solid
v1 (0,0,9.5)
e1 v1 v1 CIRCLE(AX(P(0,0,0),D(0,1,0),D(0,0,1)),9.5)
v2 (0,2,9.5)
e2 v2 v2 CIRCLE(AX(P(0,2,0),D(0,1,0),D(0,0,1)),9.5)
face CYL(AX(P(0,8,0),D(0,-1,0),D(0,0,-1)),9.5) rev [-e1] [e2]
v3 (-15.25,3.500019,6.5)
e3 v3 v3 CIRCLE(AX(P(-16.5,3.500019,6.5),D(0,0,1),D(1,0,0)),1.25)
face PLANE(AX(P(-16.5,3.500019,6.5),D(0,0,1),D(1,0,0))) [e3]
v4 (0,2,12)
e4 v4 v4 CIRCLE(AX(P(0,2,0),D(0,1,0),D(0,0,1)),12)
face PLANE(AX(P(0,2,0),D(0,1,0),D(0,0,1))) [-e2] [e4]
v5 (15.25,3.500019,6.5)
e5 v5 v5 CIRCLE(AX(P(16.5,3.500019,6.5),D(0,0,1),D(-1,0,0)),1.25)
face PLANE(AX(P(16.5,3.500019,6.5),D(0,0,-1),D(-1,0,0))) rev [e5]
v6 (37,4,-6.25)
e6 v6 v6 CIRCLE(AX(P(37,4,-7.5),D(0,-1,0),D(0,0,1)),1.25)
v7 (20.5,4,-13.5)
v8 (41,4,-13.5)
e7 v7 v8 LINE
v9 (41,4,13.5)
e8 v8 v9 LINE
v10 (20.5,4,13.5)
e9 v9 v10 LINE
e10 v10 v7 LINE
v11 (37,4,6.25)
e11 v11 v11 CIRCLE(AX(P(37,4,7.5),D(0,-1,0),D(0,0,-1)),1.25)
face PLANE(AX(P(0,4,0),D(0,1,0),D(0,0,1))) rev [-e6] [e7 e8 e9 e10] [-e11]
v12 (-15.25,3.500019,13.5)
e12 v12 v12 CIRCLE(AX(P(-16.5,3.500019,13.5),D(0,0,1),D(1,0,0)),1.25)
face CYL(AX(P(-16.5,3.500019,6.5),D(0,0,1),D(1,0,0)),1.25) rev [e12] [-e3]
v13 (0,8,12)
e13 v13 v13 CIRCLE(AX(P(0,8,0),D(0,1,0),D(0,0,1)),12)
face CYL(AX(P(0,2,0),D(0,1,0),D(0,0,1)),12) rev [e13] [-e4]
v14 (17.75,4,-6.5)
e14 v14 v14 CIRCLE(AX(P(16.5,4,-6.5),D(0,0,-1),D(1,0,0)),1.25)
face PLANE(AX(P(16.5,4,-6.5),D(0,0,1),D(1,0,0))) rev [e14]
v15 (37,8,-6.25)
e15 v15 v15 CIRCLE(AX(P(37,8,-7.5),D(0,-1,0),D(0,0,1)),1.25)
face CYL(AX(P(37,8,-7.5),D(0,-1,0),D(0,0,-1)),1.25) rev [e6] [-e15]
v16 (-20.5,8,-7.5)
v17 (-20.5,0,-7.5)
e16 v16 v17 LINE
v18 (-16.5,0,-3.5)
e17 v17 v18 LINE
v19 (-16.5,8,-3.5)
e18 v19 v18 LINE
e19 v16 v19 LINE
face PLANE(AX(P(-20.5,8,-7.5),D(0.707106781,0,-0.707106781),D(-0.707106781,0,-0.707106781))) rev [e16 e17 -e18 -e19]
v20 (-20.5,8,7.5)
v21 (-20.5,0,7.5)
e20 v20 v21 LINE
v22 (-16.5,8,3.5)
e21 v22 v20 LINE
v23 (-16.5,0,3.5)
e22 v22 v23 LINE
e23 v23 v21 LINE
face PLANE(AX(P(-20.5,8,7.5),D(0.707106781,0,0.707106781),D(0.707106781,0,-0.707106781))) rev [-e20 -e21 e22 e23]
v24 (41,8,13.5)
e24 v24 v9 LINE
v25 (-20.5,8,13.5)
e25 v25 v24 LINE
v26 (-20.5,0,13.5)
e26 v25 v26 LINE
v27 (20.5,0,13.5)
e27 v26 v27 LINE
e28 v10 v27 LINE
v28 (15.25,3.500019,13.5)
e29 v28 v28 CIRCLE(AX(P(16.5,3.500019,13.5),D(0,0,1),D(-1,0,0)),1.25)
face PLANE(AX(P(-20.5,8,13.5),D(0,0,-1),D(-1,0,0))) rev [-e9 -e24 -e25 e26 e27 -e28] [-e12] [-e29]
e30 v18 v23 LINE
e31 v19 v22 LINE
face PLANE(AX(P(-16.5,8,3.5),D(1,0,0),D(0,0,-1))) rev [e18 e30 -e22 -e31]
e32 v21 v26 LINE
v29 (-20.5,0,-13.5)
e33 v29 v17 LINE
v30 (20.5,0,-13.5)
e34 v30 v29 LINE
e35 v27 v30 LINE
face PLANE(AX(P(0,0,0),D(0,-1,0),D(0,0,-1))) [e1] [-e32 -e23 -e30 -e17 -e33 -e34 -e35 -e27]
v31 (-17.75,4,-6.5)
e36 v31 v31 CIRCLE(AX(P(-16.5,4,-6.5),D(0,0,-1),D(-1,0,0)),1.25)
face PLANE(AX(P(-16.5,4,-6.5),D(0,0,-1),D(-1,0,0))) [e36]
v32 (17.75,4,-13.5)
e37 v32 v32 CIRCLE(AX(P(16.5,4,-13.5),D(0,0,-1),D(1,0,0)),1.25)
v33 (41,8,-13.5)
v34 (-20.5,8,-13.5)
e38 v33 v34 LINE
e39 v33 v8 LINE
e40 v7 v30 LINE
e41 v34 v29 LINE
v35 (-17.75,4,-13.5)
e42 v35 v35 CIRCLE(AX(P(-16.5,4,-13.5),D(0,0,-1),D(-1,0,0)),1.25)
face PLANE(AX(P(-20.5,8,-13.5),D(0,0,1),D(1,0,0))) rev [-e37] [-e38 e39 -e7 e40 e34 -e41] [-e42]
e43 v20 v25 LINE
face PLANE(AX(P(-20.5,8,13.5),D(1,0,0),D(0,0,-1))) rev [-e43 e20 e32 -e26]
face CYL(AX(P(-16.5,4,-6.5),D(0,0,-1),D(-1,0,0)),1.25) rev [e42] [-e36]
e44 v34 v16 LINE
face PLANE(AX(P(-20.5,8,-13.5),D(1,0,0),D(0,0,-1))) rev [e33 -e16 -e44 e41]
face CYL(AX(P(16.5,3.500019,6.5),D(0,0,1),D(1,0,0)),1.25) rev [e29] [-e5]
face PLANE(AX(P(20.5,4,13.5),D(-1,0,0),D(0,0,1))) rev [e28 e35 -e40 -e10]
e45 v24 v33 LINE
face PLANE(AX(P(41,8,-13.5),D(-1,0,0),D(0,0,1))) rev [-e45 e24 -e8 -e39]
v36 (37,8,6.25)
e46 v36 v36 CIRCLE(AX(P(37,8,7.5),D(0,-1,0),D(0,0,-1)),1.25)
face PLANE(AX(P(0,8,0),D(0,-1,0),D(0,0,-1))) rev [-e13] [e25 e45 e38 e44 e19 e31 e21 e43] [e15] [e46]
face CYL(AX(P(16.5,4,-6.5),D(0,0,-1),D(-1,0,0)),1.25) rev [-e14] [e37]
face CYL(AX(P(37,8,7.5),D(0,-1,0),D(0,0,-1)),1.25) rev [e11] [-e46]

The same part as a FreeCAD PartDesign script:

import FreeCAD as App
import Part
import Sketcher

V = App.Vector

doc = App.newDocument("Part")
body = doc.addObject("PartDesign::Body", "Body")

# Sketch on XZ plane
sketch1 = doc.addObject("Sketcher::SketchObject", "Sketch")
body.addObject(sketch1)
sketch1.AttachmentSupport = (doc.XZ_Plane, [""])
sketch1.MapMode = "FlatFace"
sketch1.addGeometry(Part.LineSegment(V(-20, 8, 0), V(-20, 14, 0)), False)
sketch1.addGeometry(Part.LineSegment(V(-20, 14, 0), V(41, 14, 0)), False)
sketch1.addGeometry(Part.LineSegment(V(41, 14, 0), V(41, -14, 0)), False)
sketch1.addGeometry(Part.LineSegment(V(41, -14, 0), V(-20, -14, 0)), False)
sketch1.addGeometry(Part.LineSegment(V(-20, -14, 0), V(-20, -8, 0)), False)
sketch1.addGeometry(Part.LineSegment(V(-20, -8, 0), V(-16, -4, 0)), False)
sketch1.addGeometry(Part.LineSegment(V(-16, -4, 0), V(-16, 4, 0)), False)
sketch1.addGeometry(Part.LineSegment(V(-16, 4, 0), V(-20, 8, 0)), False)
sketch1.addGeometry(Part.Circle(V(0, 0, 0), V(0, 0, 1), 10), False)
sketch1.addConstraint(Sketcher.Constraint("Coincident", 0, 2, 1, 1))
sketch1.addConstraint(Sketcher.Constraint("Coincident", 1, 2, 2, 1))
sketch1.addConstraint(Sketcher.Constraint("Coincident", 2, 2, 3, 1))
sketch1.addConstraint(Sketcher.Constraint("Coincident", 3, 2, 4, 1))
sketch1.addConstraint(Sketcher.Constraint("Coincident", 4, 2, 5, 1))
sketch1.addConstraint(Sketcher.Constraint("Coincident", 5, 2, 6, 1))
sketch1.addConstraint(Sketcher.Constraint("Coincident", 6, 2, 7, 1))
sketch1.addConstraint(Sketcher.Constraint("Coincident", 7, 2, 0, 1))
sketch1.addConstraint(Sketcher.Constraint("Vertical", 0))
sketch1.addConstraint(Sketcher.Constraint("Horizontal", 1))
sketch1.addConstraint(Sketcher.Constraint("Vertical", 2))
sketch1.addConstraint(Sketcher.Constraint("Horizontal", 3))
sketch1.addConstraint(Sketcher.Constraint("Vertical", 4))
sketch1.addConstraint(Sketcher.Constraint("Vertical", 6))
sketch1.addConstraint(Sketcher.Constraint("Coincident", 8, 3, -1, 1))
sketch1.addConstraint(Sketcher.Constraint("Symmetric", 0, 2, 3, 2, -1))
sketch1.addConstraint(Sketcher.Constraint("Perpendicular", 5, 7))
sketch1.addConstraint(Sketcher.Constraint("Equal", 0, 4))
sketch1.addConstraint(Sketcher.Constraint("Equal", 5, 7))
sketch1.addConstraint(Sketcher.Constraint("Diameter", 8, 19.0))
sketch1.addConstraint(Sketcher.Constraint("DistanceY", 0, 1, 0, 2, 6.0))
sketch1.addConstraint(Sketcher.Constraint("DistanceY", 2, 2, 2, 1, 27.0))
sketch1.addConstraint(Sketcher.Constraint("DistanceY", 6, 1, 6, 2, 7.0))
sketch1.addConstraint(Sketcher.Constraint("DistanceX", 1, 1, 1, 2, 61.5))
sketch1.addConstraint(Sketcher.Constraint("DistanceX", -1, 1, 1, 2, 41.0))
pad1 = doc.addObject("PartDesign::Pad", "Pad")
body.addObject(pad1)
pad1.Profile = sketch1
pad1.Length = 8
pad1.Reversed = True

# Sketch on XZ plane
sketch2 = doc.addObject("Sketcher::SketchObject", "Sketch001")
body.addObject(sketch2)
sketch2.AttachmentSupport = (doc.XZ_Plane, [""])
sketch2.MapMode = "FlatFace"
sketch2.addGeometry(Part.LineSegment(V(-20, 8, 0), V(-20, 14, 0)), False)
sketch2.addGeometry(Part.LineSegment(V(-20, 14, 0), V(41, 14, 0)), False)
sketch2.addGeometry(Part.LineSegment(V(41, 14, 0), V(41, -14, 0)), False)
sketch2.addGeometry(Part.LineSegment(V(41, -14, 0), V(-20, -14, 0)), False)
sketch2.addGeometry(Part.LineSegment(V(-20, -14, 0), V(-20, -8, 0)), False)
sketch2.addGeometry(Part.LineSegment(V(-20, -8, 0), V(-16, -4, 0)), False)
sketch2.addGeometry(Part.LineSegment(V(-16, -4, 0), V(-16, 4, 0)), False)
sketch2.addGeometry(Part.LineSegment(V(-16, 4, 0), V(-20, 8, 0)), False)
sketch2.addGeometry(Part.Circle(V(0, 0, 0), V(0, 0, 1), 10), False)
sketch2.addConstraint(Sketcher.Constraint("Coincident", 0, 2, 1, 1))
sketch2.addConstraint(Sketcher.Constraint("Coincident", 1, 2, 2, 1))
sketch2.addConstraint(Sketcher.Constraint("Coincident", 2, 2, 3, 1))
sketch2.addConstraint(Sketcher.Constraint("Coincident", 3, 2, 4, 1))
sketch2.addConstraint(Sketcher.Constraint("Coincident", 4, 2, 5, 1))
sketch2.addConstraint(Sketcher.Constraint("Coincident", 5, 2, 6, 1))
sketch2.addConstraint(Sketcher.Constraint("Coincident", 6, 2, 7, 1))
sketch2.addConstraint(Sketcher.Constraint("Coincident", 7, 2, 0, 1))
sketch2.addConstraint(Sketcher.Constraint("Vertical", 0))
sketch2.addConstraint(Sketcher.Constraint("Horizontal", 1))
sketch2.addConstraint(Sketcher.Constraint("Vertical", 2))
sketch2.addConstraint(Sketcher.Constraint("Horizontal", 3))
sketch2.addConstraint(Sketcher.Constraint("Vertical", 4))
sketch2.addConstraint(Sketcher.Constraint("Vertical", 6))
sketch2.addConstraint(Sketcher.Constraint("Coincident", 8, 3, -1, 1))
sketch2.addConstraint(Sketcher.Constraint("Symmetric", 0, 2, 3, 2, -1))
sketch2.addConstraint(Sketcher.Constraint("Perpendicular", 5, 7))
sketch2.addConstraint(Sketcher.Constraint("Equal", 0, 4))
sketch2.addConstraint(Sketcher.Constraint("Equal", 5, 7))
sketch2.addConstraint(Sketcher.Constraint("Diameter", 8, 19.0))
sketch2.addConstraint(Sketcher.Constraint("DistanceY", 0, 1, 0, 2, 6.0))
sketch2.addConstraint(Sketcher.Constraint("DistanceY", 2, 2, 2, 1, 27.0))
sketch2.addConstraint(Sketcher.Constraint("DistanceY", 6, 1, 6, 2, 7.0))
sketch2.addConstraint(Sketcher.Constraint("DistanceX", 1, 1, 1, 2, 61.5))
sketch2.addConstraint(Sketcher.Constraint("DistanceX", -1, 1, 1, 2, 41.0))
pad2 = doc.addObject("PartDesign::Pad", "Pad001")
body.addObject(pad2)
pad2.Profile = sketch2
pad2.Length = 8
pad2.Reversed = True

# Sketch on XZ plane
sketch3 = doc.addObject("Sketcher::SketchObject", "Sketch002")
body.addObject(sketch3)
sketch3.AttachmentSupport = (doc.XZ_Plane, [""])
sketch3.MapMode = "FlatFace"
sketch3.AttachmentOffset = App.Placement(V(0, 0, -8), App.Rotation())
sketch3.addGeometry(Part.Circle(V(0, 0, 0), V(0, 0, 1), 12), False)
sketch3.addConstraint(Sketcher.Constraint("Coincident", 0, 3, -1, 1))
sketch3.addConstraint(Sketcher.Constraint("Diameter", 0, 24.0))
pocket1 = doc.addObject("PartDesign::Pocket", "Pocket")
body.addObject(pocket1)
pocket1.Profile = sketch3
pocket1.Length = 6
pocket1.Reversed = True

# Sketch on XZ plane
sketch4 = doc.addObject("Sketcher::SketchObject", "Sketch003")
body.addObject(sketch4)
sketch4.AttachmentSupport = (doc.XZ_Plane, [""])
sketch4.MapMode = "FlatFace"
sketch4.addGeometry(Part.LineSegment(V(20, 14, 0), V(20, -14, 0)), False)
sketch4.addGeometry(Part.LineSegment(V(20, -14, 0), V(41, -14, 0)), False)
sketch4.addGeometry(Part.LineSegment(V(41, -14, 0), V(41, 14, 0)), False)
sketch4.addGeometry(Part.LineSegment(V(41, 14, 0), V(20, 14, 0)), False)
sketch4.addConstraint(Sketcher.Constraint("Coincident", 0, 2, 1, 1))
sketch4.addConstraint(Sketcher.Constraint("Coincident", 1, 2, 2, 1))
sketch4.addConstraint(Sketcher.Constraint("Coincident", 2, 2, 3, 1))
sketch4.addConstraint(Sketcher.Constraint("Coincident", 3, 2, 0, 1))
sketch4.addConstraint(Sketcher.Constraint("Vertical", 0))
sketch4.addConstraint(Sketcher.Constraint("Horizontal", 1))
sketch4.addConstraint(Sketcher.Constraint("Vertical", 2))
sketch4.addConstraint(Sketcher.Constraint("Horizontal", 3))
sketch4.addConstraint(Sketcher.Constraint("DistanceY", 0, 2, 0, 1, 27.0))
sketch4.addConstraint(Sketcher.Constraint("DistanceX", 1, 1, 1, 2, 20.5))
sketch4.addConstraint(Sketcher.Constraint("DistanceX", -1, 1, 1, 2, 41.0))
sketch4.addConstraint(Sketcher.Constraint("DistanceY", 0, 2, -1, 1, 13.5))
pocket2 = doc.addObject("PartDesign::Pocket", "Pocket001")
body.addObject(pocket2)
pocket2.Profile = sketch4
pocket2.Length = 4

# Sketch on XZ plane
sketch5 = doc.addObject("Sketcher::SketchObject", "Sketch004")
body.addObject(sketch5)
sketch5.AttachmentSupport = (doc.XZ_Plane, [""])
sketch5.MapMode = "FlatFace"
sketch5.AttachmentOffset = App.Placement(V(0, 0, -4), App.Rotation())
sketch5.addGeometry(Part.Circle(V(37, 7.5, 0), V(0, 0, 1), 1.2), False)
sketch5.addGeometry(Part.Circle(V(37, -7.5, 0), V(0, 0, 1), 1.2), False)
sketch5.addConstraint(Sketcher.Constraint("Equal", 0, 1))
sketch5.addConstraint(Sketcher.Constraint("Symmetric", 0, 3, 1, 3, -1))
sketch5.addConstraint(Sketcher.Constraint("Diameter", 0, 2.5))
sketch5.addConstraint(Sketcher.Constraint("DistanceX", -1, 1, 0, 3, 37.0))
sketch5.addConstraint(Sketcher.Constraint("DistanceY", 1, 3, 0, 3, 15.0))
pocket3 = doc.addObject("PartDesign::Pocket", "Pocket002")
body.addObject(pocket3)
pocket3.Profile = sketch5
pocket3.Type = "ThroughAll"

# Sketch on XY plane
sketch6 = doc.addObject("Sketcher::SketchObject", "Sketch005")
body.addObject(sketch6)
sketch6.AttachmentSupport = (doc.XY_Plane, [""])
sketch6.MapMode = "FlatFace"
sketch6.AttachmentOffset = App.Placement(V(0, 0, 13.5), App.Rotation())
sketch6.addGeometry(Part.Circle(V(-16.5, 3.5, 0), V(0, 0, 1), 1.2), False)
sketch6.addGeometry(Part.Circle(V(16.5, 3.5, 0), V(0, 0, 1), 1.2), False)
sketch6.addConstraint(Sketcher.Constraint("Equal", 0, 1))
sketch6.addConstraint(Sketcher.Constraint("Symmetric", 0, 3, 1, 3, -2))
sketch6.addConstraint(Sketcher.Constraint("Diameter", 0, 2.5))
sketch6.addConstraint(Sketcher.Constraint("DistanceX", 0, 3, 1, 3, 33.0))
sketch6.addConstraint(Sketcher.Constraint("DistanceY", -1, 1, 0, 3, 3.500019))
pocket4 = doc.addObject("PartDesign::Pocket", "Pocket003")
body.addObject(pocket4)
pocket4.Profile = sketch6
pocket4.Length = 7

# Sketch on XY plane
sketch7 = doc.addObject("Sketcher::SketchObject", "Sketch006")
body.addObject(sketch7)
sketch7.AttachmentSupport = (doc.XY_Plane, [""])
sketch7.MapMode = "FlatFace"
sketch7.AttachmentOffset = App.Placement(V(0, 0, -13.5), App.Rotation())
sketch7.addGeometry(Part.Circle(V(-16.5, 4, 0), V(0, 0, 1), 1.2), False)
sketch7.addGeometry(Part.Circle(V(16.5, 4, 0), V(0, 0, 1), 1.2), False)
sketch7.addConstraint(Sketcher.Constraint("Equal", 0, 1))
sketch7.addConstraint(Sketcher.Constraint("Symmetric", 0, 3, 1, 3, -2))
sketch7.addConstraint(Sketcher.Constraint("Diameter", 0, 2.5))
sketch7.addConstraint(Sketcher.Constraint("DistanceY", -1, 1, 0, 3, 4.0))
sketch7.addConstraint(Sketcher.Constraint("DistanceX", 0, 3, 1, 3, 33.0))
pocket5 = doc.addObject("PartDesign::Pocket", "Pocket004")
body.addObject(pocket5)
pocket5.Profile = sketch7
pocket5.Length = 7
pocket5.Reversed = True

doc.recompute()
